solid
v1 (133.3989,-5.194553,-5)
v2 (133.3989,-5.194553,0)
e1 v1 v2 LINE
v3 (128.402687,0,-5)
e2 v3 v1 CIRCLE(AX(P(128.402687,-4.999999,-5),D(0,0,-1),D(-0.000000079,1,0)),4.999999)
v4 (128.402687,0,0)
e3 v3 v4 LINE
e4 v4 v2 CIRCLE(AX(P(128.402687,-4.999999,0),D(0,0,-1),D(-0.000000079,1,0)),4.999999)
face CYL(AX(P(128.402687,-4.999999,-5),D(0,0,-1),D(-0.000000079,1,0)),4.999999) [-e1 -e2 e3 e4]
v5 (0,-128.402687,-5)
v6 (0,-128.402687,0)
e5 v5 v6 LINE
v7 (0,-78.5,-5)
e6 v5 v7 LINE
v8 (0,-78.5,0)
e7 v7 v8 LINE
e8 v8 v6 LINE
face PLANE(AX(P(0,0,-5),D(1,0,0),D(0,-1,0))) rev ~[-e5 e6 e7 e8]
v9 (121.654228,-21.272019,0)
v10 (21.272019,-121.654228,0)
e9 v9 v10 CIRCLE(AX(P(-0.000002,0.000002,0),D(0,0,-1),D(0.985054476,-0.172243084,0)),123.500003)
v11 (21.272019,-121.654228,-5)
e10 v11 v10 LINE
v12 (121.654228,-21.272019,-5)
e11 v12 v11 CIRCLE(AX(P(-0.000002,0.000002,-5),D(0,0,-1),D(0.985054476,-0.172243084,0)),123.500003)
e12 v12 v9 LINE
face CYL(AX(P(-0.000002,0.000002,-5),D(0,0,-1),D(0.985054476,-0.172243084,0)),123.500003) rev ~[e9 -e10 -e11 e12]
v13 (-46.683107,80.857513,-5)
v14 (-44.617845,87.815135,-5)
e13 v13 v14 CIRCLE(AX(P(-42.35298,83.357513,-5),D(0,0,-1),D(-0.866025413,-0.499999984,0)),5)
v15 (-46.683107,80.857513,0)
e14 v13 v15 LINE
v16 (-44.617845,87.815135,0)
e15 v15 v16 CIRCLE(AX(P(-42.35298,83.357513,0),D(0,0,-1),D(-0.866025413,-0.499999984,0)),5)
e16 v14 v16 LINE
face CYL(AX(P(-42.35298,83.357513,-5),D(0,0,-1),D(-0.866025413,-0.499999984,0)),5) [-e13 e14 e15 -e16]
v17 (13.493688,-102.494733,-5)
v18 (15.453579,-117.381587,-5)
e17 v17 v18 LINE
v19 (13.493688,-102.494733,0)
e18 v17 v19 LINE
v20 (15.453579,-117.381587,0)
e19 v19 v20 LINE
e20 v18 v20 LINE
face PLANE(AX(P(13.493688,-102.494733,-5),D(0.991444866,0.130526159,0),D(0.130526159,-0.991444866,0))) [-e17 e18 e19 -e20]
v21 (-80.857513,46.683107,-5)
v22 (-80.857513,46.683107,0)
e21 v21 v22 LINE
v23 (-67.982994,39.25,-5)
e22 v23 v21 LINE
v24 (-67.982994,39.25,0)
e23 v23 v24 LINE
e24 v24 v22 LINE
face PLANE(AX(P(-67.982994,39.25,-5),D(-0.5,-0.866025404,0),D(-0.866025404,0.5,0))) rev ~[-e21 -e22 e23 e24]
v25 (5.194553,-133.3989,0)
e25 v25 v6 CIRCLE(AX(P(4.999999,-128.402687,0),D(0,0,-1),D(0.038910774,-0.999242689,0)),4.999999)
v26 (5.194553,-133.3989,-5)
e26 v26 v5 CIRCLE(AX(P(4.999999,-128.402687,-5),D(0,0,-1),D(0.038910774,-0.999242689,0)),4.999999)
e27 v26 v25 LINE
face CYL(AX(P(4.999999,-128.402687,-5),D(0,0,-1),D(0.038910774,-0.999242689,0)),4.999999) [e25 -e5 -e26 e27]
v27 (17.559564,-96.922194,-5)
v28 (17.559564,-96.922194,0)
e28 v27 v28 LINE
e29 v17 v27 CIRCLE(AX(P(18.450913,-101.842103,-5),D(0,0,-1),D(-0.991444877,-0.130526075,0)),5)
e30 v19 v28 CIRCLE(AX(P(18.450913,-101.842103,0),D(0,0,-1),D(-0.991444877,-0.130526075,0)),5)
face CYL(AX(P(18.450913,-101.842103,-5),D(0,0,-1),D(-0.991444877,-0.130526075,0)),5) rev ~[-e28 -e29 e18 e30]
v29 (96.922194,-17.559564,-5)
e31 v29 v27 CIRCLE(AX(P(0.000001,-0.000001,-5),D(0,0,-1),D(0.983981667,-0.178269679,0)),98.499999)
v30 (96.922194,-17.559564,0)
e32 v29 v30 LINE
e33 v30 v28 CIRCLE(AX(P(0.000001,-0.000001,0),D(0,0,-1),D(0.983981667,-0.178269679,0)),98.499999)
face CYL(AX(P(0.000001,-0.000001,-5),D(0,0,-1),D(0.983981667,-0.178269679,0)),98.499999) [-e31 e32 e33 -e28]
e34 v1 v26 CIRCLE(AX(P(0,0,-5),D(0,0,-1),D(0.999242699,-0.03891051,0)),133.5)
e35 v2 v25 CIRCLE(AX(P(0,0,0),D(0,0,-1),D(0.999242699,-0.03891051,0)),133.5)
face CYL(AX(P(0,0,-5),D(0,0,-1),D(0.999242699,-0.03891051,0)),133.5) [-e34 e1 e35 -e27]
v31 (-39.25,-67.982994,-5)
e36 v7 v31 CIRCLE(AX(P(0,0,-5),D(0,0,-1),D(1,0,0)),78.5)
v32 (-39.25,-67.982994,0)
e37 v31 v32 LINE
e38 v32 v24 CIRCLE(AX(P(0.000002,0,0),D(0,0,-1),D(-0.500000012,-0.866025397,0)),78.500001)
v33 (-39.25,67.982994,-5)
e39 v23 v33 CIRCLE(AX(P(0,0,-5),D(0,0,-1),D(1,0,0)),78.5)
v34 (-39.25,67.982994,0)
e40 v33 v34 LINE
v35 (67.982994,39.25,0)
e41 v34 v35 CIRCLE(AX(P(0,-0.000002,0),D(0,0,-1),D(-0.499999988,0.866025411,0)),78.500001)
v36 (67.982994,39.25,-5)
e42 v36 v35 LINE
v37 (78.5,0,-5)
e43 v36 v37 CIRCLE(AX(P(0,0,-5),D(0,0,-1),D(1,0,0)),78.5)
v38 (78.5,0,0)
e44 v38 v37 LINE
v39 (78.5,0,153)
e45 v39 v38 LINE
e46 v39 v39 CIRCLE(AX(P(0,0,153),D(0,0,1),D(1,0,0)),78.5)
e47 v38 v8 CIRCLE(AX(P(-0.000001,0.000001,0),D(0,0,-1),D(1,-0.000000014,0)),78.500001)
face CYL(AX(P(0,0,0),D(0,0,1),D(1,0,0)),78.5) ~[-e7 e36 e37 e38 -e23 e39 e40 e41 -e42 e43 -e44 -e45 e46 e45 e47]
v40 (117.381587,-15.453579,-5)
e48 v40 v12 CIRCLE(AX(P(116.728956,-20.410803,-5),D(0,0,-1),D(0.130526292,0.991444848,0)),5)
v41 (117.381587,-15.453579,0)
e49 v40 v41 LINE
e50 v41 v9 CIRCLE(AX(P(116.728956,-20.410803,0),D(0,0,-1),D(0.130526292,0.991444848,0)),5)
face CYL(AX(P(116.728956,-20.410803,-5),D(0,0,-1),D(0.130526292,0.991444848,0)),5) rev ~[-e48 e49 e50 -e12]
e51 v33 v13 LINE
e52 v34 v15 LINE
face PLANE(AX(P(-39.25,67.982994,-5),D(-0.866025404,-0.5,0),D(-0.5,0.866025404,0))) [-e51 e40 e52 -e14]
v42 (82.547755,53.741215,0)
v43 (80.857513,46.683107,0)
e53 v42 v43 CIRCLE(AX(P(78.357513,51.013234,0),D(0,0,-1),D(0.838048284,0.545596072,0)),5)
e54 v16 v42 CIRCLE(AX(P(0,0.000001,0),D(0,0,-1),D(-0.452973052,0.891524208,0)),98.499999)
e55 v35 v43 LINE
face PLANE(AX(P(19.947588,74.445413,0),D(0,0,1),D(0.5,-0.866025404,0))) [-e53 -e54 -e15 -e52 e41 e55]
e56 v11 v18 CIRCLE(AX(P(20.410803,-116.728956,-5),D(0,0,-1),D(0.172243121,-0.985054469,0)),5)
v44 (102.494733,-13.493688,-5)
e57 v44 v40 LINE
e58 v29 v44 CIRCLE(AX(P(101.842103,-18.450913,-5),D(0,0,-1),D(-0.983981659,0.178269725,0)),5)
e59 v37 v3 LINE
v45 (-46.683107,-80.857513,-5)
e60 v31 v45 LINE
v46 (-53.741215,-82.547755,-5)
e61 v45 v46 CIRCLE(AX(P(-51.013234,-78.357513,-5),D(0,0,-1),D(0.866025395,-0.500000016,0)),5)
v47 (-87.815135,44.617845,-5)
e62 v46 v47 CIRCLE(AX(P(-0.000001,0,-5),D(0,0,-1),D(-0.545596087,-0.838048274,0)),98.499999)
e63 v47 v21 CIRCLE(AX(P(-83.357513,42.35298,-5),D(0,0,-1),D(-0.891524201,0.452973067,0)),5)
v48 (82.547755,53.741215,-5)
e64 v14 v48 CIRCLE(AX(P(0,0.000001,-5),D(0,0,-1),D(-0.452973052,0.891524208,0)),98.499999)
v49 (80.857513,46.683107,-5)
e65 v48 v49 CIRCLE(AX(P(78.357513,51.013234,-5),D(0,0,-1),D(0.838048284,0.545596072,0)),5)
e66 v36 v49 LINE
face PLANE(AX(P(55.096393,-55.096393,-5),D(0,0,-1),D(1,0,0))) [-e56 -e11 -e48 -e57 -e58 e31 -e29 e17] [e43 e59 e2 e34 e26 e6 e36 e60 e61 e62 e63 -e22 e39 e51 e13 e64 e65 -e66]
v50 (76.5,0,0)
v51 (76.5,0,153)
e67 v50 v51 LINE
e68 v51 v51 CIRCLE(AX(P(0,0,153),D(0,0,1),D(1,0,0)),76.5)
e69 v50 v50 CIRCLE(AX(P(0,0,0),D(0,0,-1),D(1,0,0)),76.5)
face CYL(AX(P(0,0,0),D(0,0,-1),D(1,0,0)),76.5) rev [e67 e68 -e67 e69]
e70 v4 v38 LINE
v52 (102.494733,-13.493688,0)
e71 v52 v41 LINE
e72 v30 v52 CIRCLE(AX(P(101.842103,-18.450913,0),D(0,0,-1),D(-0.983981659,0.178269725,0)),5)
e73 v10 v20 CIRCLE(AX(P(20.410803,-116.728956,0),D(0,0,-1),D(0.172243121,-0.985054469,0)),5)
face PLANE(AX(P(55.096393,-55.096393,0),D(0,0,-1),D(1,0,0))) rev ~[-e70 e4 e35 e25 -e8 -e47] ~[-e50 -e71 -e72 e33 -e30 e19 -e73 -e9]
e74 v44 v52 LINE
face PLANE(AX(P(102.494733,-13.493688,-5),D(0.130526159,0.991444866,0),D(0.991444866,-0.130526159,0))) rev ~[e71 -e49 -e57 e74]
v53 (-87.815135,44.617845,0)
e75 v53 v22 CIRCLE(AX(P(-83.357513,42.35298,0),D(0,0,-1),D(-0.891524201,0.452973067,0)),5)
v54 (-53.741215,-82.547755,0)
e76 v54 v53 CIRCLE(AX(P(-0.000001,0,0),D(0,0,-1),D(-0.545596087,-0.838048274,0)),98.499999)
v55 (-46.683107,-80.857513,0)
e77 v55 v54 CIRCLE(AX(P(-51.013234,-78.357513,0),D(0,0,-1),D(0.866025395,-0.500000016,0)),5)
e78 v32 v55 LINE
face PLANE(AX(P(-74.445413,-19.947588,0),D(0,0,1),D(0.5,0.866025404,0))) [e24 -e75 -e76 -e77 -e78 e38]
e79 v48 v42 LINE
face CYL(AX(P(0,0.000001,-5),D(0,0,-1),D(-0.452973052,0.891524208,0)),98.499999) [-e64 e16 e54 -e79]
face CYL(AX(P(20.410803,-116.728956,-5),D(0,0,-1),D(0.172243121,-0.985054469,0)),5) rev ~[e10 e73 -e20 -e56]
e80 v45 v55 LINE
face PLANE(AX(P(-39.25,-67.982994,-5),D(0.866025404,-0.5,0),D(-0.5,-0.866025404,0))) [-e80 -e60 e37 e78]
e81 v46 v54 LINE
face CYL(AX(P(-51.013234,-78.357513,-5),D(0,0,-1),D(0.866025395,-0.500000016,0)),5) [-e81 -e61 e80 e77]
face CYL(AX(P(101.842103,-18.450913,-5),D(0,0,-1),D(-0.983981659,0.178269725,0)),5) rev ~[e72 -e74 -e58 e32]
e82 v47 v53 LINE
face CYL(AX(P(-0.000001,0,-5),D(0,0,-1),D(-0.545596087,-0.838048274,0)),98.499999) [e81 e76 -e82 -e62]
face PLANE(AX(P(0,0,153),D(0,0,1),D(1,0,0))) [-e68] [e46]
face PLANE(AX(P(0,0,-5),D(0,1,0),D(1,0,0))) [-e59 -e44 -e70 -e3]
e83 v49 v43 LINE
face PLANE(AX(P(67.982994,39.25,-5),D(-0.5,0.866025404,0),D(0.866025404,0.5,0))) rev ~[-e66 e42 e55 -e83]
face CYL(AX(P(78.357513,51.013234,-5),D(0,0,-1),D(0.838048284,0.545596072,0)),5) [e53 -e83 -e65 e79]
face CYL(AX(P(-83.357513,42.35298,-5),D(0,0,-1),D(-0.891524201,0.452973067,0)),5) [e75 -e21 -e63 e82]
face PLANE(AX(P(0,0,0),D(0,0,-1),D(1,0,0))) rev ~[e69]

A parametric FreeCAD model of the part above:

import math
import FreeCAD as App
import Part
import Sketcher
from FreeCAD import Vector
Q = App.Units.Quantity

doc = App.newDocument("Part")
body = doc.addObject("PartDesign::Body", "Body")

# Sketch on XY plane
sketch1 = body.newObject("Sketcher::SketchObject", "Sketch")
sketch1.AttachmentSupport = (doc.getObject("XY_Plane"), [""])
sketch1.MapMode = "FlatFace"
sketch1.addGeometry([
    Part.Circle(Vector(0, 0, 0), Vector(0, 0, 1), 78),
    Part.Circle(Vector(0, 0, 0), Vector(0, 0, 1), 76),
], False)
sketch1.addConstraint([
    Sketcher.Constraint("Coincident", 0, 3, -1, 1),
    Sketcher.Constraint("Coincident", 1, 3, -1, 1),
    Sketcher.Constraint("Diameter", 0, 157.0),
    Sketcher.Constraint("Diameter", 1, 153.0),
])
pad1 = body.newObject("PartDesign::Pad", "Pad")
pad1.Profile = sketch1
pad1.Length = 153

# Sketch on XY plane
sketch2 = body.newObject("Sketcher::SketchObject", "Sketch001")
sketch2.AttachmentSupport = (doc.getObject("XY_Plane"), [""])
sketch2.MapMode = "FlatFace"
sketch2.addGeometry(Part.Circle(Vector(0, 0, 0), Vector(0, 0, 1), 78), False)
sketch2.addConstraint([
    Sketcher.Constraint("Coincident", 0, 3, -1, 1),
    Sketcher.Constraint("Diameter", 0, 157.0),
])
pad2 = body.newObject("PartDesign::Pad", "Pad001")
pad2.Profile = sketch2
pad2.Length = 5
pad2.Reversed = True

# Sketch on XY plane
sketch3 = body.newObject("Sketcher::SketchObject", "Sketch002")
sketch3.AttachmentSupport = (doc.getObject("XY_Plane"), [""])
sketch3.MapMode = "FlatFace"
sketch3.AttachmentOffset = App.Placement(Vector(0, 0, -5), App.Rotation())
sketch3.addGeometry([
    Part.ArcOfCircle(Part.Circle(Vector(0, 0, 0), Vector(0, 0, 1), 79), math.radians(-90), math.radians(0)),  # 0
    Part.LineSegment(Vector(78, 0, 0), Vector(93, 0, 0)),  # 1
    Part.ArcOfCircle(Part.Circle(Vector(93, -5, 0), Vector(0, 0, 1), 5), math.radians(-3), math.radians(90)),  # 2
    Part.ArcOfCircle(Part.Circle(Vector(0, 0, 0), Vector(0, 0, 1), 98), math.radians(-87), math.radians(-3)),  # 3
    Part.ArcOfCircle(Part.Circle(Vector(5, -93, 0), Vector(0, 0, 1), 5), math.radians(-180), math.radians(-87)),  # 4
    Part.LineSegment(Vector(0, -93, 0), Vector(0, -78, 0)),  # 5
], False)
sketch3.addConstraint([
    Sketcher.Constraint("Coincident", 0, 2, 1, 1),
    Sketcher.Constraint("Tangent", 1, 2, 2, 2),
    Sketcher.Constraint("Tangent", 2, 1, 3, 2),
    Sketcher.Constraint("Tangent", 3, 1, 4, 2),
    Sketcher.Constraint("Tangent", 4, 1, 5, 1),
    Sketcher.Constraint("Coincident", 5, 2, 0, 1),
    Sketcher.Constraint("Horizontal", 1),
    Sketcher.Constraint("Vertical", 5),
    Sketcher.Constraint("Coincident", 0, 3, -1, 1),
    Sketcher.Constraint("Coincident", 3, 3, -1, 1),
    Sketcher.Constraint("Equal", 2, 4),
    Sketcher.Constraint("PointOnObject", 0, 2, -1),
    Sketcher.Constraint("PointOnObject", 4, 1, -2),
    Sketcher.Constraint("Radius", 2, 5.0),
    Sketcher.Constraint("Radius", 0, 78.500001),
    Sketcher.Constraint("Radius", 3, 98.499999),
])
pad3 = body.newObject("PartDesign::Pad", "Pad002")
pad3.Profile = sketch3
pad3.Length = 5
doc.recompute()

polarpattern = body.newObject("PartDesign::PolarPattern", "PolarPattern")
polarpattern.Originals = [pad3]
polarpattern.Axis = (doc.getObject("Z_Axis"), [""])
polarpattern.Angle = 360
polarpattern.Occurrences = 3
body.Tip = polarpattern

# Sketch on XY plane
sketch4 = body.newObject("Sketcher::SketchObject", "Sketch003")
sketch4.AttachmentSupport = (doc.getObject("XY_Plane"), [""])
sketch4.MapMode = "FlatFace"
sketch4.AttachmentOffset = App.Placement(Vector(0, 0, -5), App.Rotation())
sketch4.addGeometry([
    Part.ArcOfCircle(Part.Circle(Vector(0, 0, 0), Vector(0, 0, 1), 133.5), math.radians(-87.770029), math.radians(-2.229971)),  # 0
    Part.ArcOfCircle(Part.Circle(Vector(4.999999, -128.402687, 0), Vector(0, 0, 1), 4.999999), math.radians(179.999995), math.radians(272.229986)),  # 1
    Part.LineSegment(Vector(0, -128.402687, 0), Vector(0, 0, 0)),  # 2
    Part.LineSegment(Vector(0, 0, 0), Vector(128.402687, 0, 0)),  # 3
    Part.ArcOfCircle(Part.Circle(Vector(128.402687, -4.999999, 0), Vector(0, 0, 1), 4.999999), math.radians(-2.229986), math.radians(90.000005)),  # 4
    Part.ArcOfCircle(Part.Circle(Vector(-0.000002, 0.000002, 0), Vector(0, 0, 1), 123.500003), math.radians(-80.081738), math.radians(-9.918262)),  # 5
    Part.ArcOfCircle(Part.Circle(Vector(116.728956, -20.410803, 0), Vector(0, 0, 1), 5), math.radians(-9.918265), math.radians(82.499994)),  # 6
    Part.LineSegment(Vector(117.381587, -15.453579, 0), Vector(102.494733, -13.493688, 0)),  # 7
    Part.ArcOfCircle(Part.Circle(Vector(101.842103, -18.450913, 0), Vector(0, 0, 1), 5), math.radians(82.500007), math.radians(169.731008)),  # 8
    Part.ArcOfCircle(Part.Circle(Vector(0.000001, -0.000001, 0), Vector(0, 0, 1), 98.499999), math.radians(-79.73101), math.radians(-10.26899)),  # 9
    Part.ArcOfCircle(Part.Circle(Vector(18.450913, -101.842103, 0), Vector(0, 0, 1), 5), math.radians(100.268992), math.radians(187.499993)),  # 10
    Part.LineSegment(Vector(13.493688, -102.494733, 0), Vector(15.453579, -117.381587, 0)),  # 11
    Part.ArcOfCircle(Part.Circle(Vector(20.410803, -116.728956, 0), Vector(0, 0, 1), 5), math.radians(-172.499994), math.radians(-80.081735)),  # 12
], False)
sketch4.addConstraint([
    Sketcher.Constraint("Tangent", 0, 1, 1, 2),
    Sketcher.Constraint("Tangent", 1, 1, 2, 1),
    Sketcher.Constraint("Coincident", 2, 2, 3, 1),
    Sketcher.Constraint("Tangent", 3, 2, 4, 2),
    Sketcher.Constraint("Tangent", 4, 1, 0, 2),
    Sketcher.Constraint("Tangent", 5, 2, 6, 1),
    Sketcher.Constraint("Tangent", 6, 2, 7, 1),
    Sketcher.Constraint("Tangent", 7, 2, 8, 1),
    Sketcher.Constraint("Tangent", 8, 2, 9, 2),
    Sketcher.Constraint("Tangent", 9, 1, 10, 1),
    Sketcher.Constraint("Tangent", 10, 2, 11, 1),
    Sketcher.Constraint("Tangent", 11, 2, 12, 1),
    Sketcher.Constraint("Tangent", 12, 2, 5, 1),
    Sketcher.Constraint("Vertical", 2),
    Sketcher.Constraint("Horizontal", 3),
    Sketcher.Constraint("Coincident", 0, 3, -1, 1),
    Sketcher.Constraint("Coincident", 5, 3, -1, 1),
    Sketcher.Constraint("Coincident", 9, 3, -1, 1),
    Sketcher.Constraint("Coincident", 2, 2, -1, 1),
    Sketcher.Constraint("Equal", 1, 4),
    Sketcher.Constraint("Equal", 4, 6),
    Sketcher.Constraint("Equal", 6, 8),
    Sketcher.Constraint("Equal", 8, 10),
    Sketcher.Constraint("Equal", 10, 12),
    Sketcher.Constraint("Equal", 7, 11),
    Sketcher.Constraint("Radius", 1, 4.999999),
    Sketcher.Constraint("Radius", 0, 133.5),
    Sketcher.Constraint("Radius", 9, 98.499999),
    Sketcher.Constraint("Angle", 7, Q("172.500002 deg")),
    Sketcher.Constraint("Angle", 11, Q("-82.500002 deg")),
    Sketcher.Constraint("Radius", 5, 123.500003),
    Sketcher.Constraint("DistanceX", 9, 3, 8, 3, 101.842102),
])
pad4 = body.newObject("PartDesign::Pad", "Pad003")
pad4.Profile = sketch4
pad4.Length = 5

doc.recompute()
